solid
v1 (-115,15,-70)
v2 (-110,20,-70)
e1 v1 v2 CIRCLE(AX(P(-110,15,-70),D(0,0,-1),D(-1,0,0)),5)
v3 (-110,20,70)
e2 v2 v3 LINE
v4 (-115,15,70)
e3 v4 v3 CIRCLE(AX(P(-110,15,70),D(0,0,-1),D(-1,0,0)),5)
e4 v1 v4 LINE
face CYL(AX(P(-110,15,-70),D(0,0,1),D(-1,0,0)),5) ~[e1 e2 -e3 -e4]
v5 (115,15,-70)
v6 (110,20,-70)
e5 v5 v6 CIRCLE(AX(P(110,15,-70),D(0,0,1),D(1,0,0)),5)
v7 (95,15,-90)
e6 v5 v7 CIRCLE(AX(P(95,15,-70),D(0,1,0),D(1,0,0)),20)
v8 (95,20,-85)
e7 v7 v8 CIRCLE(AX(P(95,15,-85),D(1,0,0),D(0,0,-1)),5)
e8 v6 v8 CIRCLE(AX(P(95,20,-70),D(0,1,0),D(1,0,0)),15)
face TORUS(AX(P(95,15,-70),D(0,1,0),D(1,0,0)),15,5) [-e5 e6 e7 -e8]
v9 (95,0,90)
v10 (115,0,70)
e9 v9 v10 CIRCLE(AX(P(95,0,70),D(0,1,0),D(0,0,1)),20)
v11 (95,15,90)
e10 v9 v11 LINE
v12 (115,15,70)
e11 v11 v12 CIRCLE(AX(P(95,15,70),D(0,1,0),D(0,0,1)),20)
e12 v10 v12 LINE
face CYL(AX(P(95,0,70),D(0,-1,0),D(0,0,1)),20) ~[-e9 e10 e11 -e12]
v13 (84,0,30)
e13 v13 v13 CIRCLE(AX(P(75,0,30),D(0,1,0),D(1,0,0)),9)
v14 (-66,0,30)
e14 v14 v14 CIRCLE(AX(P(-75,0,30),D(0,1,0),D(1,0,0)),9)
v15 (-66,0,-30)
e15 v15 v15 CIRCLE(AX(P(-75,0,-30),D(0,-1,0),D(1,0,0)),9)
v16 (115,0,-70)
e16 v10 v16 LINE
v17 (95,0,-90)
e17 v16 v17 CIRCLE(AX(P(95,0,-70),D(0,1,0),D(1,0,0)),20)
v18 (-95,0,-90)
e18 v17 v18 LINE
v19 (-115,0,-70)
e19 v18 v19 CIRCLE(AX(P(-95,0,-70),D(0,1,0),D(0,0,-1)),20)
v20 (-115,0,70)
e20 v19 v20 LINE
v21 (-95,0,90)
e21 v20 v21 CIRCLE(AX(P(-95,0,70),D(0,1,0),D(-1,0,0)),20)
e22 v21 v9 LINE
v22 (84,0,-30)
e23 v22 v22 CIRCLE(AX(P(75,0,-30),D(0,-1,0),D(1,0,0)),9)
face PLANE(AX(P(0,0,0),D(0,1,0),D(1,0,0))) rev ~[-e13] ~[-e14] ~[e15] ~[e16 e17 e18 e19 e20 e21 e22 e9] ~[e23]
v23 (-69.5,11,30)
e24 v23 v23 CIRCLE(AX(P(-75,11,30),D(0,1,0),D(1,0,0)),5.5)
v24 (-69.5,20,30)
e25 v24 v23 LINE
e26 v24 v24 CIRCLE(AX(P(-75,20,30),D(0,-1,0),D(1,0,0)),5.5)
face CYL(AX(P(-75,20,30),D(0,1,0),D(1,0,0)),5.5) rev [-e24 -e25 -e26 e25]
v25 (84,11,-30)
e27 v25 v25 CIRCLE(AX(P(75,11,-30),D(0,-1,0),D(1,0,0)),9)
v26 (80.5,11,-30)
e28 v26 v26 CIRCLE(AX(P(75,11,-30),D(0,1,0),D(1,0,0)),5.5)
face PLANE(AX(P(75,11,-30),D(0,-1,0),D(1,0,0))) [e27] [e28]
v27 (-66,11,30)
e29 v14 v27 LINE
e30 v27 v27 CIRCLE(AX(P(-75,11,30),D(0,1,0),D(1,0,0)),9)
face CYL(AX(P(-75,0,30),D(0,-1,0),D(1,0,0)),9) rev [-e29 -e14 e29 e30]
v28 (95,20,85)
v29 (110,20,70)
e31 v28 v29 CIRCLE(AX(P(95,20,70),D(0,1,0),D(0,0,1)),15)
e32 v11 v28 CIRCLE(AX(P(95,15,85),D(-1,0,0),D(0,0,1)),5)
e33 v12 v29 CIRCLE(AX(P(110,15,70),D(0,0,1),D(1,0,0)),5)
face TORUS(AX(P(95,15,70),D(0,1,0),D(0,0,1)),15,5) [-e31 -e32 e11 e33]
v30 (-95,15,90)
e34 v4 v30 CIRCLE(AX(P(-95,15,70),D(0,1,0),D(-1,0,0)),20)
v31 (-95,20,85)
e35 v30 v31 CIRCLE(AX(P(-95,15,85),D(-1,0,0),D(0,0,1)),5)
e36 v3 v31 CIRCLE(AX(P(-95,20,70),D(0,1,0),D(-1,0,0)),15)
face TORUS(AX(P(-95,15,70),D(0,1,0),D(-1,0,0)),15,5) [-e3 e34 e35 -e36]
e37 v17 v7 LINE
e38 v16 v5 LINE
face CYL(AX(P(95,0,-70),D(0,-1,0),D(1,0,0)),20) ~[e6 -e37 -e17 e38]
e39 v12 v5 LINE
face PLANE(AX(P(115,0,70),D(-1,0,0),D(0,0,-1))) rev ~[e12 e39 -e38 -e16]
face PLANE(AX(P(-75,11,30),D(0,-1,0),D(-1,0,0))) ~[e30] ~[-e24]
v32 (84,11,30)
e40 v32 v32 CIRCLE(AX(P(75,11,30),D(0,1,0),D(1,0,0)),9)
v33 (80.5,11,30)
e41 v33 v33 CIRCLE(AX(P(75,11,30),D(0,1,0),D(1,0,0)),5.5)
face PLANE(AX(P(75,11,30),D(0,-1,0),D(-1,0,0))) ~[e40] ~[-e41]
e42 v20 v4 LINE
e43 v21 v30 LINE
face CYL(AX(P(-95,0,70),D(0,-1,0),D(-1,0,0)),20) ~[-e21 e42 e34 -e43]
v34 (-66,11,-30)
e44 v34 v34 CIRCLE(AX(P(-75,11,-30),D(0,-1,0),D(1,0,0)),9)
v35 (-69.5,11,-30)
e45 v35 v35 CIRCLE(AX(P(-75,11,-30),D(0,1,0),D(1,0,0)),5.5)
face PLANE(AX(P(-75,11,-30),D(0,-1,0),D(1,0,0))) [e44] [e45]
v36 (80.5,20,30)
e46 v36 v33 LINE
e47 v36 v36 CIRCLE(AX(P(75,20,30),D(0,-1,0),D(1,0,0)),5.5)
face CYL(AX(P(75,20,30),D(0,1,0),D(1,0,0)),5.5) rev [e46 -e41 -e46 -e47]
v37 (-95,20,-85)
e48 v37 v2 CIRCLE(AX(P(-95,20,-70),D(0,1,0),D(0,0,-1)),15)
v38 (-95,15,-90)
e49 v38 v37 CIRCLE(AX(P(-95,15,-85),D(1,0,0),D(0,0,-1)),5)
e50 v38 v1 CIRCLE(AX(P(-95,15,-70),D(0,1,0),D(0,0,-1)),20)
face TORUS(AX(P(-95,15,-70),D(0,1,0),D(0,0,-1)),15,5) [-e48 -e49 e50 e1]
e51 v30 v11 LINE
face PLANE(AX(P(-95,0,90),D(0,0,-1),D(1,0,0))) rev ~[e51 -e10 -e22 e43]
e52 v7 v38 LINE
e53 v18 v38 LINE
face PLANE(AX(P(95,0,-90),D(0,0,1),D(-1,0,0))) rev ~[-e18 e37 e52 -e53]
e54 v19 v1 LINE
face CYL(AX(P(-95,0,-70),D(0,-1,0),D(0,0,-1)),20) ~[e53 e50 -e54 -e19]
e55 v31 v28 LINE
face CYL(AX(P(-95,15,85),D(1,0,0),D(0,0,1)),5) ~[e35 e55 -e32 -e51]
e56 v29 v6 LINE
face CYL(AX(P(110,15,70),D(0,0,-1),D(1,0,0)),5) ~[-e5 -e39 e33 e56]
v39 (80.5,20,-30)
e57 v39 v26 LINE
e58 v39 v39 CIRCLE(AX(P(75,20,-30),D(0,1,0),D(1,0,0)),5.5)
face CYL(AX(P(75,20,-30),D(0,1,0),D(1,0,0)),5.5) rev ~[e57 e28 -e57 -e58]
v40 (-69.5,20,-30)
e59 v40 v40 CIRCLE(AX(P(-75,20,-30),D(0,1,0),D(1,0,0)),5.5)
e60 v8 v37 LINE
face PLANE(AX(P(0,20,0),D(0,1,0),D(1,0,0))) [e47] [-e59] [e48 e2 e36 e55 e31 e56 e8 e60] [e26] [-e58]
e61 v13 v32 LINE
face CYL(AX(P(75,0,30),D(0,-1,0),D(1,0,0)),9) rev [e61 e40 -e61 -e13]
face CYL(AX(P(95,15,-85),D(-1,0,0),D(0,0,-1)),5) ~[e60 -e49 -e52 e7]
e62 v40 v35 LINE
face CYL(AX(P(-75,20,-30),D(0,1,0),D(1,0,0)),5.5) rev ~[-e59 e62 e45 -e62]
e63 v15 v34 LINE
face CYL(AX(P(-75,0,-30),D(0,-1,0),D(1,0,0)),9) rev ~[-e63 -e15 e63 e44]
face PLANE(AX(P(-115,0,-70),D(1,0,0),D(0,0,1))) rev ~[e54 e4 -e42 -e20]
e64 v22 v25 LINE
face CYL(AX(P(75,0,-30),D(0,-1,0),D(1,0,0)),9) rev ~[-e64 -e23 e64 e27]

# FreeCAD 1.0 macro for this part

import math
import FreeCAD as App
import Part
import Sketcher
from FreeCAD import Vector


def edges_at(feature, points):
    """Names of the edges that pass closest to the given points."""
    edges = feature.Shape.Edges
    near = lambda p: min(range(len(edges)), key=lambda i: edges[i].distToShape(Part.Vertex(*p))[0])
    return sorted({f"Edge{near(p) + 1}" for p in points})

doc = App.newDocument("Part")
body = doc.addObject("PartDesign::Body", "Body")

sketch1 = body.newObject("Sketcher::SketchObject", "Sketch")
sketch1.AttachmentSupport = (doc.getObject("XZ_Plane"), [""])
sketch1.MapMode = "FlatFace"
sketch1.addGeometry([
    Part.LineSegment(Vector(-95, 90, 0), Vector(95, 90, 0)),
    Part.ArcOfCircle(Part.Circle(Vector(95, 70, 0), Vector(0, 0, 1), 20), math.radians(0), math.radians(90)),
    Part.LineSegment(Vector(115, 70, 0), Vector(115, -70, 0)),
    Part.ArcOfCircle(Part.Circle(Vector(95, -70, 0), Vector(0, 0, 1), 20), math.radians(-90), math.radians(0)),
    Part.LineSegment(Vector(95, -90, 0), Vector(-95, -90, 0)),
    Part.ArcOfCircle(Part.Circle(Vector(-95, -70, 0), Vector(0, 0, 1), 20), math.radians(180), math.radians(270)),
    Part.LineSegment(Vector(-115, -70, 0), Vector(-115, 70, 0)),
    Part.ArcOfCircle(Part.Circle(Vector(-95, 70, 0), Vector(0, 0, 1), 20), math.radians(90), math.radians(180)),
], False)
sketch1.addConstraint([
    Sketcher.Constraint("Tangent", 0, 2, 1, 2),
    Sketcher.Constraint("Tangent", 1, 1, 2, 1),
    Sketcher.Constraint("Tangent", 2, 2, 3, 2),
    Sketcher.Constraint("Tangent", 3, 1, 4, 1),
    Sketcher.Constraint("Tangent", 4, 2, 5, 2),
    Sketcher.Constraint("Tangent", 5, 1, 6, 1),
    Sketcher.Constraint("Tangent", 6, 2, 7, 2),
    Sketcher.Constraint("Tangent", 7, 1, 0, 1),
    Sketcher.Constraint("Horizontal", 0),
    Sketcher.Constraint("Vertical", 2),
    Sketcher.Constraint("Horizontal", 4),
    Sketcher.Constraint("Vertical", 6),
    Sketcher.Constraint("Equal", 1, 3),
    Sketcher.Constraint("Equal", 3, 5),
    Sketcher.Constraint("Equal", 5, 7),
    Sketcher.Constraint("Symmetric", 1, 3, 5, 3, -1, 1),
    Sketcher.Constraint("Radius", 1, 20.0),
    Sketcher.Constraint("DistanceX", 0, 1, 0, 2, 190.0),
    Sketcher.Constraint("DistanceY", 2, 2, 2, 1, 140.0),
])
pad1 = body.newObject("PartDesign::Pad", "Pad")
pad1.Profile = sketch1
pad1.Length = 20
pad1.Reversed = True
doc.recompute()

fillet = body.newObject("PartDesign::Fillet", "Fillet")
fillet.Base = (pad1, edges_at(pad1, [
    (109.142, 20, -84.142),
    (0, 20, -90),
    (-109.142, 20, -84.142),
    (-115, 20, 0),
    (-109.142, 20, 84.142),
    (0, 20, 90),
    (109.142, 20, 84.142),
    (115, 20, 0),
]))
fillet.Radius = 5

sketch2 = body.newObject("Sketcher::SketchObject", "Sketch001")
sketch2.AttachmentSupport = (doc.getObject("XZ_Plane"), [""])
sketch2.MapMode = "FlatFace"
sketch2.AttachmentOffset = App.Placement(Vector(0, 0, -20), App.Rotation())
sketch2.addGeometry([
    Part.Circle(Vector(-75, -30, 0), Vector(0, 0, 1), 6),
    Part.Circle(Vector(75, -30, 0), Vector(0, 0, 1), 6),
], False)
sketch2.addConstraint([
    Sketcher.Constraint("Equal", 0, 1),
    Sketcher.Constraint("Symmetric", 0, 3, 1, 3, -2),
    Sketcher.Constraint("Diameter", 0, 11.0),
    Sketcher.Constraint("DistanceX", 0, 3, -1, 1, 75.0),
    Sketcher.Constraint("DistanceY", 0, 3, -1, 1, 30.0),
])
pocket1 = body.newObject("PartDesign::Pocket", "Pocket")
pocket1.Profile = sketch2
pocket1.Type = "ThroughAll"
pocket1.Reversed = True

sketch3 = body.newObject("Sketcher::SketchObject", "Sketch002")
sketch3.AttachmentSupport = (doc.getObject("XZ_Plane"), [""])
sketch3.MapMode = "FlatFace"
sketch3.addGeometry([
    Part.Circle(Vector(-75, -30, 0), Vector(0, 0, 1), 9),
    Part.Circle(Vector(75, -30, 0), Vector(0, 0, 1), 9),
], False)
sketch3.addConstraint([
    Sketcher.Constraint("Equal", 0, 1),
    Sketcher.Constraint("Symmetric", 0, 3, 1, 3, -2),
    Sketcher.Constraint("Diameter", 0, 18.0),
    Sketcher.Constraint("DistanceX", 0, 3, -1, 1, 75.0),
    Sketcher.Constraint("DistanceY", 0, 3, -1, 1, 30.0),
])
pocket2 = body.newObject("PartDesign::Pocket", "Pocket001")
pocket2.Profile = sketch3
pocket2.Length = 11
doc.recompute()

mirrored = body.newObject("PartDesign::Mirrored", "Mirrored")
mirrored.Originals = [pocket1, pocket2]
mirrored.MirrorPlane = (doc.getObject("XY_Plane"), [""])
body.Tip = mirrored

doc.recompute()
